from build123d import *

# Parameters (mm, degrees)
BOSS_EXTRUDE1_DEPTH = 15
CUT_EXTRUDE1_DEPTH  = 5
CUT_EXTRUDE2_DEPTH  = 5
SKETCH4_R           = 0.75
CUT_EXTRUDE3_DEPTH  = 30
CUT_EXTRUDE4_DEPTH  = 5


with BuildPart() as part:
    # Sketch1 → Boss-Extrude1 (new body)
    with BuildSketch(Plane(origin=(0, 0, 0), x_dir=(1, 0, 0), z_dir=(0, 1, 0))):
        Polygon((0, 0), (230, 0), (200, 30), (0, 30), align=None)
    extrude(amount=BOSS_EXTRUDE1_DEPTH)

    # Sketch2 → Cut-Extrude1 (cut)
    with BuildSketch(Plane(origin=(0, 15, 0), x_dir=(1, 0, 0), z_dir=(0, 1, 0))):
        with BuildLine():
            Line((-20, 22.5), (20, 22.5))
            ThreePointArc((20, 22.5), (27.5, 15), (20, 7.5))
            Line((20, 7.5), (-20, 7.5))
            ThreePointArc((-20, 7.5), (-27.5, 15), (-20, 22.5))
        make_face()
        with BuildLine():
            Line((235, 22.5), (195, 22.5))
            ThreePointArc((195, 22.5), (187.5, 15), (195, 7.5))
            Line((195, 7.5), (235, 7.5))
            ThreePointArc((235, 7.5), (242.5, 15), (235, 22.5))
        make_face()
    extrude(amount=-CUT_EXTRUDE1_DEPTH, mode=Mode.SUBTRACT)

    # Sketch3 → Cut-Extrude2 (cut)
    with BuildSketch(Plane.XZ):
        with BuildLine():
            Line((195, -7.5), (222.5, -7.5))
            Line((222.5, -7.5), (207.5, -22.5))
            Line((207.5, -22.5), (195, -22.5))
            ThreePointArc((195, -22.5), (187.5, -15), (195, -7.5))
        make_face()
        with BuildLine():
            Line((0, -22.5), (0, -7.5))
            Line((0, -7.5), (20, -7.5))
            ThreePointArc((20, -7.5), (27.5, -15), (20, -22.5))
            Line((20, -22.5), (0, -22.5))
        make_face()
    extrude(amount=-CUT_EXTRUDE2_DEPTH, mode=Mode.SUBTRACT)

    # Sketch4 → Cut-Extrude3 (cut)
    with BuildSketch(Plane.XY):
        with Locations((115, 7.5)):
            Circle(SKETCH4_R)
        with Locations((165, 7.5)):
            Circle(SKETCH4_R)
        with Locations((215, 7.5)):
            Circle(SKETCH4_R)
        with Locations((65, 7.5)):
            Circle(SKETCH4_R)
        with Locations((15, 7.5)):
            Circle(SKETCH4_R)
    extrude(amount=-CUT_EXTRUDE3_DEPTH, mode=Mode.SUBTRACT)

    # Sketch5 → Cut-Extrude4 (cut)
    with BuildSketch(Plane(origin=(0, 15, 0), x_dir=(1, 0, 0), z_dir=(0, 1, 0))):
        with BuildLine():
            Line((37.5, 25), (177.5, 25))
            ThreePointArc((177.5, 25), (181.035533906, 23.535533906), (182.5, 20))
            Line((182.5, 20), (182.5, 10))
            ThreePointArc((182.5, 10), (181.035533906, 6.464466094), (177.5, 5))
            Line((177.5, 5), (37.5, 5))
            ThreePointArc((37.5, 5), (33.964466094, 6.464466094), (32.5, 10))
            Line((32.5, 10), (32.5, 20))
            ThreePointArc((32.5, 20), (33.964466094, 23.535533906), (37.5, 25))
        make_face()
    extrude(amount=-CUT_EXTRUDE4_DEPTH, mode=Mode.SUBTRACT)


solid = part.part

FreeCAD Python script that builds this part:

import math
import FreeCAD as App
import Part
import Sketcher

V = App.Vector
Q = App.Units.Quantity

doc = App.newDocument("Part")
body = doc.addObject("PartDesign::Body", "Body")

sketch1 = doc.addObject("Sketcher::SketchObject", "Sketch")
body.addObject(sketch1)
sketch1.AttachmentSupport = (doc.XZ_Plane, [""])
sketch1.MapMode = "FlatFace"
sketch1.addGeometry([
    Part.LineSegment(V(0, 0, 0), V(230, 0, 0)),
    Part.LineSegment(V(230, 0, 0), V(200, -30, 0)),
    Part.LineSegment(V(200, -30, 0), V(0, -30, 0)),
    Part.LineSegment(V(0, -30, 0), V(0, 0, 0)),
], False)
sketch1.addConstraint([
    Sketcher.Constraint("Coincident", 0, 2, 1, 1),
    Sketcher.Constraint("Coincident", 1, 2, 2, 1),
    Sketcher.Constraint("Coincident", 2, 2, 3, 1),
    Sketcher.Constraint("Coincident", 3, 2, 0, 1),
    Sketcher.Constraint("Horizontal", 0),
    Sketcher.Constraint("Horizontal", 2),
    Sketcher.Constraint("Vertical", 3),
    Sketcher.Constraint("Coincident", 3, 2, -1, 1),
    Sketcher.Constraint("DistanceX", 0, 1, 0, 2, 230.0),
    Sketcher.Constraint("DistanceX", 2, 2, 2, 1, 200.0),
    Sketcher.Constraint("DistanceY", 3, 1, 3, 2, 30.0),
])
pad1 = doc.addObject("PartDesign::Pad", "Pad")
body.addObject(pad1)
pad1.Profile = sketch1
pad1.Length = 15
pad1.Reversed = True

sketch2 = doc.addObject("Sketcher::SketchObject", "Sketch001")
body.addObject(sketch2)
sketch2.AttachmentSupport = (doc.XZ_Plane, [""])
sketch2.MapMode = "FlatFace"
sketch2.AttachmentOffset = App.Placement(V(0, 0, -15), App.Rotation())
sketch2.addGeometry([
    Part.LineSegment(V(20, -22, 0), V(-20, -22, 0)),
    Part.ArcOfCircle(Part.Circle(V(-20, -15, 0), V(0, 0, 1), 8), math.radians(90), math.radians(270)),
    Part.LineSegment(V(-20, -8, 0), V(20, -8, 0)),
    Part.ArcOfCircle(Part.Circle(V(20, -15, 0), V(0, 0, 1), 8), math.radians(-90), math.radians(90)),
    Part.LineSegment(V(235, -22, 0), V(195, -22, 0)),
    Part.ArcOfCircle(Part.Circle(V(195, -15, 0), V(0, 0, 1), 8), math.radians(90), math.radians(270)),
    Part.LineSegment(V(195, -8, 0), V(235, -8, 0)),
    Part.ArcOfCircle(Part.Circle(V(235, -15, 0), V(0, 0, 1), 8), math.radians(-90), math.radians(90)),
], False)
sketch2.addConstraint([
    Sketcher.Constraint("Tangent", 0, 2, 1, 2),
    Sketcher.Constraint("Tangent", 1, 1, 2, 1),
    Sketcher.Constraint("Tangent", 2, 2, 3, 2),
    Sketcher.Constraint("Tangent", 3, 1, 0, 1),
    Sketcher.Constraint("Tangent", 4, 2, 5, 2),
    Sketcher.Constraint("Tangent", 5, 1, 6, 1),
    Sketcher.Constraint("Tangent", 6, 2, 7, 2),
    Sketcher.Constraint("Tangent", 7, 1, 4, 1),
    Sketcher.Constraint("Horizontal", 0),
    Sketcher.Constraint("Horizontal", 2),
    Sketcher.Constraint("Horizontal", 4),
    Sketcher.Constraint("Horizontal", 6),
    Sketcher.Constraint("Equal", 3, 5),
    Sketcher.Constraint("Horizontal", 3, 3, 5, 3),
    Sketcher.Constraint("Equal", 2, 4),
    Sketcher.Constraint("Radius", 1, 7.5),
    Sketcher.Constraint("DistanceX", 0, 2, 0, 1, 40.0),
    Sketcher.Constraint("DistanceX", 1, 3, -1, 1, 20.0),
    Sketcher.Constraint("DistanceY", 1, 3, -1, 1, 15.0),
    Sketcher.Constraint("DistanceX", -1, 1, 5, 3, 195.0),
])
pocket1 = doc.addObject("PartDesign::Pocket", "Pocket")
body.addObject(pocket1)
pocket1.Profile = sketch2
pocket1.Length = 5
pocket1.Reversed = True

sketch3 = doc.addObject("Sketcher::SketchObject", "Sketch002")
body.addObject(sketch3)
sketch3.AttachmentSupport = (doc.XZ_Plane, [""])
sketch3.MapMode = "FlatFace"
sketch3.addGeometry([
    Part.LineSegment(V(222, -8, 0), V(195, -8, 0)),
    Part.ArcOfCircle(Part.Circle(V(195, -15, 0), V(0, 0, 1), 8), math.radians(90), math.radians(270)),
    Part.LineSegment(V(195, -22, 0), V(208, -22, 0)),
    Part.LineSegment(V(208, -22, 0), V(222, -8, 0)),
    Part.LineSegment(V(0, -8, 0), V(0, -22, 0)),
    Part.LineSegment(V(0, -22, 0), V(20, -22, 0)),
    Part.ArcOfCircle(Part.Circle(V(20, -15, 0), V(0, 0, 1), 8), math.radians(-90), math.radians(90)),
    Part.LineSegment(V(20, -8, 0), V(0, -8, 0)),
], False)
sketch3.addConstraint([
    Sketcher.Constraint("Tangent", 0, 2, 1, 1),
    Sketcher.Constraint("Tangent", 1, 2, 2, 1),
    Sketcher.Constraint("Coincident", 2, 2, 3, 1),
    Sketcher.Constraint("Coincident", 3, 2, 0, 1),
    Sketcher.Constraint("Coincident", 4, 2, 5, 1),
    Sketcher.Constraint("Tangent", 5, 2, 6, 1),
    Sketcher.Constraint("Tangent", 6, 2, 7, 1),
    Sketcher.Constraint("Coincident", 7, 2, 4, 1),
    Sketcher.Constraint("Horizontal", 0),
    Sketcher.Constraint("Horizontal", 2),
    Sketcher.Constraint("Vertical", 4),
    Sketcher.Constraint("Horizontal", 5),
    Sketcher.Constraint("Horizontal", 7),
    Sketcher.Constraint("Equal", 1, 6),
    Sketcher.Constraint("PointOnObject", 4, 2, -2),
    Sketcher.Constraint("Horizontal", 1, 3, 6, 3),
    Sketcher.Constraint("Radius", 1, 7.5),
    Sketcher.Constraint("DistanceX", 5, 1, 5, 2, 20.0),
    Sketcher.Constraint("Angle", 3, Q("45 deg")),
    Sketcher.Constraint("DistanceX", 0, 2, 0, 1, 27.5),
    Sketcher.Constraint("DistanceX", -1, 1, 1, 3, 195.0),
    Sketcher.Constraint("DistanceY", 1, 3, -1, 1, 15.0),
])
pocket2 = doc.addObject("PartDesign::Pocket", "Pocket001")
body.addObject(pocket2)
pocket2.Profile = sketch3
pocket2.Length = 5

sketch4 = doc.addObject("Sketcher::SketchObject", "Sketch003")
body.addObject(sketch4)
sketch4.AttachmentSupport = (doc.XY_Plane, [""])
sketch4.MapMode = "FlatFace"
sketch4.addGeometry([
    Part.Circle(V(115, 7.5, 0), V(0, 0, 1), 0.8),
    Part.Circle(V(165, 7.5, 0), V(0, 0, 1), 0.8),
    Part.Circle(V(215, 7.5, 0), V(0, 0, 1), 0.8),
    Part.Circle(V(65, 7.5, 0), V(0, 0, 1), 0.8),
    Part.Circle(V(15, 7.5, 0), V(0, 0, 1), 0.8),
], False)
sketch4.addConstraint([
    Sketcher.Constraint("Equal", 0, 1),
    Sketcher.Constraint("Equal", 1, 2),
    Sketcher.Constraint("Equal", 2, 3),
    Sketcher.Constraint("Equal", 3, 4),
    Sketcher.Constraint("Horizontal", 0, 3, 1, 3),
    Sketcher.Constraint("Horizontal", 1, 3, 2, 3),
    Sketcher.Constraint("Horizontal", 2, 3, 3, 3),
    Sketcher.Constraint("Horizontal", 3, 3, 4, 3),
    Sketcher.Constraint("Diameter", 0, 1.5),
    Sketcher.Constraint("DistanceX", -1, 1, 0, 3, 115.0),
    Sketcher.Constraint("DistanceX", -1, 1, 1, 3, 165.0),
    Sketcher.Constraint("DistanceX", -1, 1, 2, 3, 215.0),
    Sketcher.Constraint("DistanceX", -1, 1, 3, 3, 65.0),
    Sketcher.Constraint("DistanceX", -1, 1, 4, 3, 15.0),
    Sketcher.Constraint("DistanceY", -1, 1, 0, 3, 7.5),
])
pocket3 = doc.addObject("PartDesign::Pocket", "Pocket002")
body.addObject(pocket3)
pocket3.Profile = sketch4
pocket3.Length = 30

sketch5 = doc.addObject("Sketcher::SketchObject", "Sketch004")
body.addObject(sketch5)
sketch5.AttachmentSupport = (doc.XZ_Plane, [""])
sketch5.MapMode = "FlatFace"
sketch5.AttachmentOffset = App.Placement(V(0, 0, -15), App.Rotation())
sketch5.addGeometry([
    Part.LineSegment(V(178, -25, 0), V(38, -25, 0)),
    Part.ArcOfCircle(Part.Circle(V(38, -20, 0), V(0, 0, 1), 5), math.radians(180), math.radians(270)),
    Part.LineSegment(V(32, -20, 0), V(32, -10, 0)),
    Part.ArcOfCircle(Part.Circle(V(38, -10, 0), V(0, 0, 1), 5), math.radians(90), math.radians(180)),
    Part.LineSegment(V(38, -5, 0), V(178, -5, 0)),
    Part.ArcOfCircle(Part.Circle(V(178, -10, 0), V(0, 0, 1), 5), math.radians(0), math.radians(90)),
    Part.LineSegment(V(182, -10, 0), V(182, -20, 0)),
    Part.ArcOfCircle(Part.Circle(V(178, -20, 0), V(0, 0, 1), 5), math.radians(-90), math.radians(0)),
], False)
sketch5.addConstraint([
    Sketcher.Constraint("Tangent", 0, 2, 1, 2),
    Sketcher.Constraint("Tangent", 1, 1, 2, 1),
    Sketcher.Constraint("Tangent", 2, 2, 3, 2),
    Sketcher.Constraint("Tangent", 3, 1, 4, 1),
    Sketcher.Constraint("Tangent", 4, 2, 5, 2),
    Sketcher.Constraint("Tangent", 5, 1, 6, 1),
    Sketcher.Constraint("Tangent", 6, 2, 7, 2),
    Sketcher.Constraint("Tangent", 7, 1, 0, 1),
    Sketcher.Constraint("Horizontal", 0),
    Sketcher.Constraint("Vertical", 2),
    Sketcher.Constraint("Horizontal", 4),
    Sketcher.Constraint("Vertical", 6),
    Sketcher.Constraint("Equal", 1, 3),
    Sketcher.Constraint("Equal", 3, 5),
    Sketcher.Constraint("Equal", 5, 7),
    Sketcher.Constraint("Radius", 1, 5.0),
    Sketcher.Constraint("DistanceX", 0, 2, 0, 1, 140.0),
    Sketcher.Constraint("DistanceY", 2, 1, 2, 2, 10.0),
    Sketcher.Constraint("DistanceY", 1, 3, -1, 1, 20.0),
    Sketcher.Constraint("DistanceX", -1, 1, 1, 3, 37.5),
])
pocket4 = doc.addObject("PartDesign::Pocket", "Pocket003")
body.addObject(pocket4)
pocket4.Profile = sketch5
pocket4.Length = 5
pocket4.Reversed = True

doc.recompute()
